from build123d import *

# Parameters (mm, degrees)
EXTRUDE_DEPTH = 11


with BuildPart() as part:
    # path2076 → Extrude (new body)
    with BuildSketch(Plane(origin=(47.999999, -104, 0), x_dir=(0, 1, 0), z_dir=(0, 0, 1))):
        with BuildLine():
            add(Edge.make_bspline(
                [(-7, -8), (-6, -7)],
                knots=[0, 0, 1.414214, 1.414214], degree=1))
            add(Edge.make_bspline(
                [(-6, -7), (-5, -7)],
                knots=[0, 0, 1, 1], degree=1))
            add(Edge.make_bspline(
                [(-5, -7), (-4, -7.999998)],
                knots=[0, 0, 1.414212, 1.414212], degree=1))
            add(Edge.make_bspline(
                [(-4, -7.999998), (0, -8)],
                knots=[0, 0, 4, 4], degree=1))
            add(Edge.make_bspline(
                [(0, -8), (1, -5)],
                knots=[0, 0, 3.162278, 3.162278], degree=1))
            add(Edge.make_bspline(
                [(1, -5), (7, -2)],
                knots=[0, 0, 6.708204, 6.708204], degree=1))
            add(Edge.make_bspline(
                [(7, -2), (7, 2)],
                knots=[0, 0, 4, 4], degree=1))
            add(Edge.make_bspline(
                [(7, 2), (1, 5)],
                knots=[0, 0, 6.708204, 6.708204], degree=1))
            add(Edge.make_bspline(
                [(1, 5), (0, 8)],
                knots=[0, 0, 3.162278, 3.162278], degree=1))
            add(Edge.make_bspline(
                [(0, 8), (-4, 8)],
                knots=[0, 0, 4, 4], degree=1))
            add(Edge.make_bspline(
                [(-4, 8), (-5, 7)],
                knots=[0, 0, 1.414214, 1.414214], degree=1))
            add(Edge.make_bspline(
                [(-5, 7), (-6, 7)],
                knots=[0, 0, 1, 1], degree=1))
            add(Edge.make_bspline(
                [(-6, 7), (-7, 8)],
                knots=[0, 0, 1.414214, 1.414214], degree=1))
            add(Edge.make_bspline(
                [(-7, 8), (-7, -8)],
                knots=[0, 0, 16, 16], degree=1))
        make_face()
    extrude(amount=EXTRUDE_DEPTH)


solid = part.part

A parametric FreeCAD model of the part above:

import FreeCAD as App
import Part
import Sketcher

V = App.Vector

doc = App.newDocument("Part")
params = doc.addObject("Spreadsheet::Sheet", "Params")
for row, (alias, value) in enumerate([
    ("pad1_length", "11 mm"),
], start=1):
    params.set(f"A{row}", alias)
    params.set(f"B{row}", "=" + value)
    params.setAlias(f"B{row}", alias)

body = doc.addObject("PartDesign::Body", "Body")

sketch1 = body.newObject("Sketcher::SketchObject", "Sketch")
sketch1.AttachmentSupport = (doc.getObject("XY_Plane"), [""])
sketch1.MapMode = "FlatFace"
sketch1.addGeometry([
    Part.BSplineCurve([V(55.999999, -111, 0), V(54.999999, -110, 0)], [2, 2], [0, 1.414214], False, 1, [1, 1], False),
    Part.BSplineCurve([V(54.999999, -110, 0), V(54.999999, -109, 0)], [2, 2], [0, 1], False, 1, [1, 1], False),
    Part.BSplineCurve([V(54.999999, -109, 0), V(55.999997, -108, 0)], [2, 2], [0, 1.414212], False, 1, [1, 1], False),
    Part.BSplineCurve([V(55.999997, -108, 0), V(55.999999, -104, 0)], [2, 2], [0, 4], False, 1, [1, 1], False),
    Part.BSplineCurve([V(55.999999, -104, 0), V(52.999999, -103, 0)], [2, 2], [0, 3.162278], False, 1, [1, 1], False),
    Part.BSplineCurve([V(52.999999, -103, 0), V(49.999999, -97, 0)], [2, 2], [0, 6.708204], False, 1, [1, 1], False),
    Part.BSplineCurve([V(49.999999, -97, 0), V(45.999999, -97, 0)], [2, 2], [0, 4], False, 1, [1, 1], False),
    Part.BSplineCurve([V(45.999999, -97, 0), V(42.999999, -103, 0)], [2, 2], [0, 6.708204], False, 1, [1, 1], False),
    Part.BSplineCurve([V(42.999999, -103, 0), V(39.999999, -104, 0)], [2, 2], [0, 3.162278], False, 1, [1, 1], False),
    Part.BSplineCurve([V(39.999999, -104, 0), V(39.999999, -108, 0)], [2, 2], [0, 4], False, 1, [1, 1], False),
    Part.BSplineCurve([V(39.999999, -108, 0), V(40.999999, -109, 0)], [2, 2], [0, 1.414214], False, 1, [1, 1], False),
    Part.BSplineCurve([V(40.999999, -109, 0), V(40.999999, -110, 0)], [2, 2], [0, 1], False, 1, [1, 1], False),
    Part.BSplineCurve([V(40.999999, -110, 0), V(39.999999, -111, 0)], [2, 2], [0, 1.414214], False, 1, [1, 1], False),
    Part.BSplineCurve([V(39.999999, -111, 0), V(55.999999, -111, 0)], [2, 2], [0, 16], False, 1, [1, 1], False),
], False)
sketch1.addConstraint([
    Sketcher.Constraint("Block", 0),
    Sketcher.Constraint("Block", 1),
    Sketcher.Constraint("Block", 2),
    Sketcher.Constraint("Block", 3),
    Sketcher.Constraint("Block", 4),
    Sketcher.Constraint("Block", 5),
    Sketcher.Constraint("Block", 6),
    Sketcher.Constraint("Block", 7),
    Sketcher.Constraint("Block", 8),
    Sketcher.Constraint("Block", 9),
    Sketcher.Constraint("Block", 10),
    Sketcher.Constraint("Block", 11),
    Sketcher.Constraint("Block", 12),
    Sketcher.Constraint("Block", 13),
])
pad1 = body.newObject("PartDesign::Pad", "Pad")
pad1.Profile = sketch1
pad1.setExpression("Length", "Params.pad1_length")

doc.recompute()
